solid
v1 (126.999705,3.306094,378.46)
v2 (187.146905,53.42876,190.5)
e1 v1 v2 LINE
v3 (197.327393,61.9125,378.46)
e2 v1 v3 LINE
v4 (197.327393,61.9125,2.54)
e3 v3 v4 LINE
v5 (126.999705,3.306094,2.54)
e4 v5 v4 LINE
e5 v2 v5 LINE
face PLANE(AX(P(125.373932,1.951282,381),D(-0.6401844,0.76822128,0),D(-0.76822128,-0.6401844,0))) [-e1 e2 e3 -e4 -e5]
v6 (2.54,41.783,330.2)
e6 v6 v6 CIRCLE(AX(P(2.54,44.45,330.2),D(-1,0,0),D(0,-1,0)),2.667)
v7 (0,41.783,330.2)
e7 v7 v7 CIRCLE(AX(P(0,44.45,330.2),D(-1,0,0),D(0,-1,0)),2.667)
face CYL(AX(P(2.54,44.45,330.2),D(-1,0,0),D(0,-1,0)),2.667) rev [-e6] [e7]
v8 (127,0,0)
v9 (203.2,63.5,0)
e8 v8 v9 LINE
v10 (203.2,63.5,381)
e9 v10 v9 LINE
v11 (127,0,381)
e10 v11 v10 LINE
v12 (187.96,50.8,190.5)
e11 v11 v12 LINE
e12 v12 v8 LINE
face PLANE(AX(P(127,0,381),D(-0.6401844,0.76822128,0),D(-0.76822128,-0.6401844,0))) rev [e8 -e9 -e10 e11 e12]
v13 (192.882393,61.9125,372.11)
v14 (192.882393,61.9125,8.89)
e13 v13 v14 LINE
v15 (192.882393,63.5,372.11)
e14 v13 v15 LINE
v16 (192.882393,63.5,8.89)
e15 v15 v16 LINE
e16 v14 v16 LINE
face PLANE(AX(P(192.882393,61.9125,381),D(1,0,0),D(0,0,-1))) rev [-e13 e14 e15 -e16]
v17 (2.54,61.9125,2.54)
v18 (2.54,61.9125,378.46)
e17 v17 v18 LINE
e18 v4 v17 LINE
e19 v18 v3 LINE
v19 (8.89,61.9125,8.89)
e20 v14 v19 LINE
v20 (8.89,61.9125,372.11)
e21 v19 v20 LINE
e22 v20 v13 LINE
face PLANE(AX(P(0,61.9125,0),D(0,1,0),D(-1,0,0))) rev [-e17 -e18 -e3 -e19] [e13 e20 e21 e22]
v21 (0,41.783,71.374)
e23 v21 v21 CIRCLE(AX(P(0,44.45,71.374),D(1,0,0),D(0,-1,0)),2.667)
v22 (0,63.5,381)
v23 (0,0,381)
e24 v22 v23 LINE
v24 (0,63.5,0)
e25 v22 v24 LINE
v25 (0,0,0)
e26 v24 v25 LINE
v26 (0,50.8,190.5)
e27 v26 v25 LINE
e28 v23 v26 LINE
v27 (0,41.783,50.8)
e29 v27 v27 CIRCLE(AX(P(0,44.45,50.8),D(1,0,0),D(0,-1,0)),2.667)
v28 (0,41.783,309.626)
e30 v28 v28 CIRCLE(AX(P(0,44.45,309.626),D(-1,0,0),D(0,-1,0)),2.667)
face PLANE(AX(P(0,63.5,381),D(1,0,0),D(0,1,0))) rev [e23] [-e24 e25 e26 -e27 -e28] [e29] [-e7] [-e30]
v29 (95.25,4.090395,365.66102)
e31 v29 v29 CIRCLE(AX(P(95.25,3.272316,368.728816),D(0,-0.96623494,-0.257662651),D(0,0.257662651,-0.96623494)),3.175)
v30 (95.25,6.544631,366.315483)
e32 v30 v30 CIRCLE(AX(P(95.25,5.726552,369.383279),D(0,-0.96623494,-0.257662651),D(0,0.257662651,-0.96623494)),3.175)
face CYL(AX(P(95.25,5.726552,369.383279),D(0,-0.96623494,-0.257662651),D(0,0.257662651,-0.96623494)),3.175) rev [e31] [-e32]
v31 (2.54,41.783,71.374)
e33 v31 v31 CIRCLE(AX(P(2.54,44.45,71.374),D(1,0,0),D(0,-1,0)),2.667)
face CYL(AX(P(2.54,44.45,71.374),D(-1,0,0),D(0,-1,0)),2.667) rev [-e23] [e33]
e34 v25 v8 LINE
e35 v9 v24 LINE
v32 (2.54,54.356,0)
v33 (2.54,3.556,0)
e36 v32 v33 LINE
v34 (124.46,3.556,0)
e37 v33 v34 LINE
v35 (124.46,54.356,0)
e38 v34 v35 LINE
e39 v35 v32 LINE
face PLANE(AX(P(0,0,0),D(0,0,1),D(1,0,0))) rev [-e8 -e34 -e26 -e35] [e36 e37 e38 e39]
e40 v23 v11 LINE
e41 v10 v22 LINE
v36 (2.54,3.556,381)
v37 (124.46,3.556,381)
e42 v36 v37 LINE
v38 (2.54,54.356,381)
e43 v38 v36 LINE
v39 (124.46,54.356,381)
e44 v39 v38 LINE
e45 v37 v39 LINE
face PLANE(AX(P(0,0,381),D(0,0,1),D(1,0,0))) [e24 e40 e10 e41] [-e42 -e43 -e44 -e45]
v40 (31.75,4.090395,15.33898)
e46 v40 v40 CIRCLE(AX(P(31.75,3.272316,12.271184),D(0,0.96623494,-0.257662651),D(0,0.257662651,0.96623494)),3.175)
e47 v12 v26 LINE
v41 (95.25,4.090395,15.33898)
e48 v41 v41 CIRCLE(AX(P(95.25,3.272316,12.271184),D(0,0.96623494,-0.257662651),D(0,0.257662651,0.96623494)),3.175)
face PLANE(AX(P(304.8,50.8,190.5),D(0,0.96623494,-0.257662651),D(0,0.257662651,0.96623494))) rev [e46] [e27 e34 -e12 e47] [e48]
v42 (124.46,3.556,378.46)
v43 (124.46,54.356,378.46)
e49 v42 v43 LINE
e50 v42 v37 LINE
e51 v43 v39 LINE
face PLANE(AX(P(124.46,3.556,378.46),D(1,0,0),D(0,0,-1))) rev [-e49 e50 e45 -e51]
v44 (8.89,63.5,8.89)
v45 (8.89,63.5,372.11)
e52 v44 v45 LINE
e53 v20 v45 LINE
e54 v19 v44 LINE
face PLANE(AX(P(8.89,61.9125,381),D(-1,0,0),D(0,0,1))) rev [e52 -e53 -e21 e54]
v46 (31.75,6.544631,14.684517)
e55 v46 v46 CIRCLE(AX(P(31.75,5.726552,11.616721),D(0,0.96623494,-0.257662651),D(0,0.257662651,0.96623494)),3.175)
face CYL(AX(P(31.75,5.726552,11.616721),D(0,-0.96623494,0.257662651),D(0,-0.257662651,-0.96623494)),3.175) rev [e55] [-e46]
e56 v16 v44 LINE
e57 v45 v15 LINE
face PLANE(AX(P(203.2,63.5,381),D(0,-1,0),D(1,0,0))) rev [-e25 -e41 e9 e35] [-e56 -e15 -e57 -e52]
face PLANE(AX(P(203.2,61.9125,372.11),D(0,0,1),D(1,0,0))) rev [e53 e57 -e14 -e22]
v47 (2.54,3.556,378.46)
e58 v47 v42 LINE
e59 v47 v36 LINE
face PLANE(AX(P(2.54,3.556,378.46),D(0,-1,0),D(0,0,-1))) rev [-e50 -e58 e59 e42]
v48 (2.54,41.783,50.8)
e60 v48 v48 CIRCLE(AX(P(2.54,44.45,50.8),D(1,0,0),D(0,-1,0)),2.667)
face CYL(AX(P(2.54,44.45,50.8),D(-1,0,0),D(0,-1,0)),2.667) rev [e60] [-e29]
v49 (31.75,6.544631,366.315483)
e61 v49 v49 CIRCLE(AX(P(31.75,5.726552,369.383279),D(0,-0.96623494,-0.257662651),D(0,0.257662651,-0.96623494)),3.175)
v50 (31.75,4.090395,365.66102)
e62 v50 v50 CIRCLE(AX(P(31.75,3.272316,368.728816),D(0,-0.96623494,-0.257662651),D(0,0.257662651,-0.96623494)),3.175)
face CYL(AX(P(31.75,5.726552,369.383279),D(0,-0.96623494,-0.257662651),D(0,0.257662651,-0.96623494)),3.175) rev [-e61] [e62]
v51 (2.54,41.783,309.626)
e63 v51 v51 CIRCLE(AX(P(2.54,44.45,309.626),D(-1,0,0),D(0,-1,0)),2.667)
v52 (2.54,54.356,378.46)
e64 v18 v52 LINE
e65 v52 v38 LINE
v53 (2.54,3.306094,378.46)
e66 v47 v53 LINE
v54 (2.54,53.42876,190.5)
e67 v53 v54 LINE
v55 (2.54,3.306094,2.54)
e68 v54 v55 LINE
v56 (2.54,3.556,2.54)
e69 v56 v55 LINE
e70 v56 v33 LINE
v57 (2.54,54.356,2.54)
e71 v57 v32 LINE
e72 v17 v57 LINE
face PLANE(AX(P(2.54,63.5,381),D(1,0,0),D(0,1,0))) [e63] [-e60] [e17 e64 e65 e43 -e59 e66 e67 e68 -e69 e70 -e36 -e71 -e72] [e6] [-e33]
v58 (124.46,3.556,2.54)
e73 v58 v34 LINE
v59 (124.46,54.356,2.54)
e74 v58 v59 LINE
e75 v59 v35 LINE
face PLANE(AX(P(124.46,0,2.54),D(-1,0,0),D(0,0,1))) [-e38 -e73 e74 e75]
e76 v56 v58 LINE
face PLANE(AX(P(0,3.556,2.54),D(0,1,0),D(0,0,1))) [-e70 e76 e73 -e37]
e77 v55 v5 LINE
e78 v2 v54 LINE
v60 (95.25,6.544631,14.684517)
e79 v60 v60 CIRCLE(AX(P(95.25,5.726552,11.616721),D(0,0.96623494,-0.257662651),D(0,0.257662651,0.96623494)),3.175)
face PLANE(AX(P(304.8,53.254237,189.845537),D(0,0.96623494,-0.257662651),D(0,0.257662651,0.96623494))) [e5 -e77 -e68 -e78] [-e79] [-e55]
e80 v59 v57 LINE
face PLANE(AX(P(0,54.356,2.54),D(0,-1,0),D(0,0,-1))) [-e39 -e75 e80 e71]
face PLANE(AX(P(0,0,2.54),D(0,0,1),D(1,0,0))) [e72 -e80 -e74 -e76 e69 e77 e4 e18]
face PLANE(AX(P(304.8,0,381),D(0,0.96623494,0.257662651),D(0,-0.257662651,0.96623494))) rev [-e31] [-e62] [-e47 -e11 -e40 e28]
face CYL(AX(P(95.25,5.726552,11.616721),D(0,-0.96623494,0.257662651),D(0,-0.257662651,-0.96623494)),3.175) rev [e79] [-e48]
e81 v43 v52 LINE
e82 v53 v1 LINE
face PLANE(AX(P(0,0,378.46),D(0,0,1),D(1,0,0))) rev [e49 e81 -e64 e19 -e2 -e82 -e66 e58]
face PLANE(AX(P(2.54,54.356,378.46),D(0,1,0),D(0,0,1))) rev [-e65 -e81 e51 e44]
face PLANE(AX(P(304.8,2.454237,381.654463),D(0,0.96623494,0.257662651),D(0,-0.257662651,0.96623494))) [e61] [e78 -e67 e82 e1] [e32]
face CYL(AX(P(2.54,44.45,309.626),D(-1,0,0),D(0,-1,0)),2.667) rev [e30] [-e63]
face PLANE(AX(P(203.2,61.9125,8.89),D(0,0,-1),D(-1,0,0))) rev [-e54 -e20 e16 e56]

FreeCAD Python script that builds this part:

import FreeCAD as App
import Part
import Sketcher
Q = App.Units.Quantity


def faces_at(feature, points):
    """Names of the faces that lie closest to the given points."""
    faces = feature.Shape.Faces
    near = lambda p: min(range(len(faces)), key=lambda i: faces[i].distToShape(Part.Vertex(*p))[0])
    return sorted({f"Face{near(p) + 1}" for p in points})


def add_polygon(sketch, points):
    """Adds a closed chain of lines whose ends are joined by coincident constraints."""
    first, n = sketch.GeometryCount, len(points)
    for a, b in zip(points, points[1:] + points[:1]):
        sketch.addGeometry(Part.LineSegment(App.Vector(*a, 0), App.Vector(*b, 0)), False)
    for i in range(n):
        sketch.addConstraint(Sketcher.Constraint("Coincident", first + i, 2, first + (i + 1) % n, 1))

doc = App.newDocument("Part")
params = doc.addObject("Spreadsheet::Sheet", "Params")
for row, (alias, value) in enumerate([
    ("sketch1_width", "5 in"),
    ("sketch1_width2", "8 in"),
    ("sketch1_height", "2.5 in"),
    ("pad1_length", "15 in"),
    ("sketch2_height", "15 in"),
    ("pocket1_length", "12 in"),
    ("thickness_wall", "0.1 in"),
    ("sketch3_height", "2 in"),
    ("sketch3_width", "4.8 in"),
    ("pocket2_length", "0.1 in"),
    ("sketch4_height", "2 in"),
    ("sketch4_width", "4.8 in"),
    ("pocket3_length", "0.1 in"),
    ("sketch5_diameter", "0.25 in"),
    ("pocket4_length", "0.1 in"),
    ("sketch6_height", "14.8 in"),
    ("sketch6_height2", "14.3 in"),
    ("pad2_length", "0.0625 in"),
    ("sketch7_diameter", "0.21 in"),
    ("pocket5_length", "0.1 in"),
], start=1):
    params.set(f"A{row}", alias)
    params.set(f"B{row}", "=" + value)
    params.setAlias(f"B{row}", alias)

body = doc.addObject("PartDesign::Body", "Body")

# Sketch on XY plane
sketch1 = body.newObject("Sketcher::SketchObject", "Sketch")
sketch1.AttachmentSupport = (doc.getObject("XY_Plane"), [""])
sketch1.MapMode = "FlatFace"
add_polygon(sketch1, [(0, 0), (127, 0), (203, 64), (0, 64)])  # lines 0-3
sketch1.addConstraint(Sketcher.Constraint("Horizontal", 0))
sketch1.addConstraint(Sketcher.Constraint("Horizontal", 2))
sketch1.addConstraint(Sketcher.Constraint("Vertical", 3))
sketch1.addConstraint(Sketcher.Constraint("Coincident", 3, 2, -1, 1))
sketch1.addConstraint(Sketcher.Constraint("DistanceX", 0, 1, 0, 2, Q("5 in")))
sketch1.addConstraint(Sketcher.Constraint("DistanceX", 2, 2, 2, 1, Q("8 in")))
sketch1.addConstraint(Sketcher.Constraint("DistanceY", 3, 2, 3, 1, Q("2.5 in")))
sketch1.setExpression("Constraints[8]", "Params.sketch1_width")
sketch1.setExpression("Constraints[9]", "Params.sketch1_width2")
sketch1.setExpression("Constraints[10]", "Params.sketch1_height")
pad1 = body.newObject("PartDesign::Pad", "Pad")
pad1.Profile = sketch1
pad1.setExpression("Length", "Params.pad1_length")

# Sketch on YZ plane
sketch2 = body.newObject("Sketcher::SketchObject", "Sketch001")
sketch2.AttachmentSupport = (doc.getObject("YZ_Plane"), [""])
sketch2.MapMode = "FlatFace"
add_polygon(sketch2, [(0, 0), (0, 381), (51, 190)])  # lines 0-2
sketch2.addConstraint(Sketcher.Constraint("Vertical", 0))
sketch2.addConstraint(Sketcher.Constraint("Coincident", 2, 2, -1, 1))
sketch2.addConstraint(Sketcher.Constraint("Equal", 1, 2))
sketch2.addConstraint(Sketcher.Constraint("DistanceY", 0, 1, 0, 2, Q("15 in")))
sketch2.addConstraint(Sketcher.Constraint("DistanceX", -1, 1, 1, 2, Q("2 in")))
sketch2.setExpression("Constraints[6]", "Params.sketch2_height")
pocket1 = body.newObject("PartDesign::Pocket", "Pocket")
pocket1.Profile = sketch2
pocket1.setExpression("Length", "Params.pocket1_length")
pocket1.Reversed = True
doc.recompute()

thickness = body.newObject("PartDesign::Thickness", "Thickness")
thickness.Base = (pocket1, faces_at(pocket1, [(101.6, 63.5, 190.5)]))
thickness.setExpression("Value", "Params.thickness_wall")
thickness.Reversed = True
thickness.Join = "Intersection"

# Sketch on XY plane
sketch3 = body.newObject("Sketcher::SketchObject", "Sketch002")
sketch3.AttachmentSupport = (doc.getObject("XY_Plane"), [""])
sketch3.MapMode = "FlatFace"
sketch3.AttachmentOffset = App.Placement(App.Vector(0, 0, 15 * 25.4), App.Rotation())
add_polygon(sketch3, [(3, 54), (3, 4), (124, 4), (124, 54)])  # lines 0-3
sketch3.addConstraint(Sketcher.Constraint("Vertical", 0))
sketch3.addConstraint(Sketcher.Constraint("Horizontal", 1))
sketch3.addConstraint(Sketcher.Constraint("Vertical", 2))
sketch3.addConstraint(Sketcher.Constraint("Horizontal", 3))
sketch3.addConstraint(Sketcher.Constraint("DistanceY", 0, 2, 0, 1, Q("2 in")))
sketch3.addConstraint(Sketcher.Constraint("DistanceX", 1, 1, 1, 2, Q("4.8 in")))
sketch3.addConstraint(Sketcher.Constraint("DistanceX", -1, 1, 0, 2, Q("0.1 in")))
sketch3.addConstraint(Sketcher.Constraint("DistanceY", -1, 1, 0, 2, Q("0.14 in")))
sketch3.setExpression("Constraints[8]", "Params.sketch3_height")
sketch3.setExpression("Constraints[9]", "Params.sketch3_width")
pocket2 = body.newObject("PartDesign::Pocket", "Pocket001")
pocket2.Profile = sketch3
pocket2.setExpression("Length", "Params.pocket2_length")

# Sketch on XY plane
sketch4 = body.newObject("Sketcher::SketchObject", "Sketch003")
sketch4.AttachmentSupport = (doc.getObject("XY_Plane"), [""])
sketch4.MapMode = "FlatFace"
add_polygon(sketch4, [(3, 54), (3, 4), (124, 4), (124, 54)])  # lines 0-3
sketch4.addConstraint(Sketcher.Constraint("Vertical", 0))
sketch4.addConstraint(Sketcher.Constraint("Horizontal", 1))
sketch4.addConstraint(Sketcher.Constraint("Vertical", 2))
sketch4.addConstraint(Sketcher.Constraint("Horizontal", 3))
sketch4.addConstraint(Sketcher.Constraint("DistanceY", 0, 2, 0, 1, Q("2 in")))
sketch4.addConstraint(Sketcher.Constraint("DistanceX", 1, 1, 1, 2, Q("4.8 in")))
sketch4.addConstraint(Sketcher.Constraint("DistanceX", -1, 1, 0, 2, Q("0.1 in")))
sketch4.addConstraint(Sketcher.Constraint("DistanceY", -1, 1, 0, 2, Q("0.14 in")))
sketch4.setExpression("Constraints[8]", "Params.sketch4_height")
sketch4.setExpression("Constraints[9]", "Params.sketch4_width")
pocket3 = body.newObject("PartDesign::Pocket", "Pocket002")
pocket3.Profile = sketch4
pocket3.setExpression("Length", "Params.pocket3_length")
pocket3.Reversed = True

# Sketch on an angled plane
sketch5 = body.newObject("Sketcher::SketchObject", "Sketch004")
sketch5.Placement = App.Placement(App.Vector(0, 94.854772, 25.294606), App.Rotation(App.Vector(1, 0, 0), App.Vector(0, -0.257662651, 0.96623494), App.Vector(0, -0.96623494, -0.257662651), "ZXY"))
sketch5.addGeometry(Part.Circle(App.Vector(31.8, 355.4, 0), App.Vector(0, 0, 1), 3.2), False)
sketch5.addGeometry(Part.Circle(App.Vector(95.2, 355.4, 0), App.Vector(0, 0, 1), 3.2), False)
sketch5.addConstraint(Sketcher.Constraint("Equal", 0, 1))
sketch5.addConstraint(Sketcher.Constraint("Horizontal", 0, 3, 1, 3))
sketch5.addConstraint(Sketcher.Constraint("Diameter", 0, Q("0.25 in")))
sketch5.addConstraint(Sketcher.Constraint("DistanceX", 0, 3, 1, 3, Q("2.5 in")))
sketch5.addConstraint(Sketcher.Constraint("DistanceX", -1, 1, 0, 3, Q("1.25 in")))
sketch5.addConstraint(Sketcher.Constraint("DistanceY", -1, 1, 0, 3, 355.435512))
sketch5.setExpression("Constraints[2]", "Params.sketch5_diameter")
pocket4 = body.newObject("PartDesign::Pocket", "Pocket003")
pocket4.Profile = sketch5
pocket4.setExpression("Length", "Params.pocket4_length")
doc.recompute()

datumplane = body.newObject("PartDesign::Plane", "DatumPlane")
datumplane.AttachmentSupport = (doc.getObject("XY_Plane"), [""])
datumplane.MapMode = "FlatFace"
datumplane.AttachmentOffset = App.Placement(App.Vector(0, 0, 7.5 * 25.4), App.Rotation())
mirrored = body.newObject("PartDesign::Mirrored", "Mirrored")
mirrored.Originals = [pocket4]
mirrored.MirrorPlane = (datumplane, [""])
body.Tip = mirrored

# Sketch on XZ plane
sketch6 = body.newObject("Sketcher::SketchObject", "Sketch005")
sketch6.AttachmentSupport = (doc.getObject("XZ_Plane"), [""])
sketch6.MapMode = "FlatFace"
sketch6.AttachmentOffset = App.Placement(App.Vector(0, 0, -2.5 * 25.4), App.Rotation())
add_polygon(sketch6, [(3, 3), (3, 378), (199, 378), (199, 3)])  # lines 0-3
add_polygon(sketch6, [(193, 372), (9, 372), (9, 9), (193, 9)])  # lines 4-7
sketch6.addConstraint(Sketcher.Constraint("Vertical", 0))
sketch6.addConstraint(Sketcher.Constraint("Horizontal", 1))
sketch6.addConstraint(Sketcher.Constraint("Vertical", 2))
sketch6.addConstraint(Sketcher.Constraint("Horizontal", 3))
sketch6.addConstraint(Sketcher.Constraint("Horizontal", 4))
sketch6.addConstraint(Sketcher.Constraint("Vertical", 5))
sketch6.addConstraint(Sketcher.Constraint("Horizontal", 6))
sketch6.addConstraint(Sketcher.Constraint("Vertical", 7))
sketch6.addConstraint(Sketcher.Constraint("DistanceY", 0, 1, 0, 2, Q("14.8 in")))
sketch6.addConstraint(Sketcher.Constraint("DistanceY", 5, 2, 5, 1, Q("14.3 in")))
sketch6.addConstraint(Sketcher.Constraint("DistanceX", -1, 1, 0, 2, Q("0.1 in")))
sketch6.addConstraint(Sketcher.Constraint("DistanceY", -1, 1, 0, 2, Q("14.9 in")))
sketch6.addConstraint(Sketcher.Constraint("DistanceX", -1, 1, 4, 2, Q("0.35 in")))
sketch6.addConstraint(Sketcher.Constraint("DistanceY", -1, 1, 4, 2, Q("14.65 in")))
sketch6.addConstraint(Sketcher.Constraint("DistanceX", 6, 2, 2, 2, Q("0.25 in")))
sketch6.addConstraint(Sketcher.Constraint("DistanceX", 1, 1, 1, 2, 196.692393))
sketch6.setExpression("Constraints[16]", "Params.sketch6_height")
sketch6.setExpression("Constraints[17]", "Params.sketch6_height2")
pad2 = body.newObject("PartDesign::Pad", "Pad001")
pad2.Profile = sketch6
pad2.setExpression("Length", "Params.pad2_length")

# Sketch on YZ plane
sketch7 = body.newObject("Sketcher::SketchObject", "Sketch006")
sketch7.AttachmentSupport = (doc.getObject("YZ_Plane"), [""])
sketch7.MapMode = "FlatFace"
sketch7.addGeometry(Part.Circle(App.Vector(44.5, 309.6, 0), App.Vector(0, 0, 1), 2.7), False)
sketch7.addGeometry(Part.Circle(App.Vector(44.5, 330.2, 0), App.Vector(0, 0, 1), 2.7), False)
sketch7.addConstraint(Sketcher.Constraint("Equal", 0, 1))
sketch7.addConstraint(Sketcher.Constraint("Vertical", 0, 3, 1, 3))
sketch7.addConstraint(Sketcher.Constraint("Diameter", 0, Q("0.21 in")))
sketch7.addConstraint(Sketcher.Constraint("DistanceY", -1, 1, 1, 3, Q("13 in")))
sketch7.addConstraint(Sketcher.Constraint("DistanceX", -1, 1, 0, 3, Q("1.75 in")))
sketch7.addConstraint(Sketcher.Constraint("DistanceY", -1, 1, 0, 3, Q("12.19 in")))
sketch7.setExpression("Constraints[2]", "Params.sketch7_diameter")
pocket5 = body.newObject("PartDesign::Pocket", "Pocket004")
pocket5.Profile = sketch7
pocket5.setExpression("Length", "Params.pocket5_length")
pocket5.Reversed = True
doc.recompute()

datumplane2 = body.newObject("PartDesign::Plane", "DatumPlane001")
datumplane2.AttachmentSupport = (doc.getObject("XY_Plane"), [""])
datumplane2.MapMode = "FlatFace"
datumplane2.AttachmentOffset = App.Placement(App.Vector(0, 0, 7.5 * 25.4), App.Rotation())
mirrored2 = body.newObject("PartDesign::Mirrored", "Mirrored001")
mirrored2.Originals = [pocket5]
mirrored2.MirrorPlane = (datumplane2, [""])
body.Tip = mirrored2

doc.recompute()
